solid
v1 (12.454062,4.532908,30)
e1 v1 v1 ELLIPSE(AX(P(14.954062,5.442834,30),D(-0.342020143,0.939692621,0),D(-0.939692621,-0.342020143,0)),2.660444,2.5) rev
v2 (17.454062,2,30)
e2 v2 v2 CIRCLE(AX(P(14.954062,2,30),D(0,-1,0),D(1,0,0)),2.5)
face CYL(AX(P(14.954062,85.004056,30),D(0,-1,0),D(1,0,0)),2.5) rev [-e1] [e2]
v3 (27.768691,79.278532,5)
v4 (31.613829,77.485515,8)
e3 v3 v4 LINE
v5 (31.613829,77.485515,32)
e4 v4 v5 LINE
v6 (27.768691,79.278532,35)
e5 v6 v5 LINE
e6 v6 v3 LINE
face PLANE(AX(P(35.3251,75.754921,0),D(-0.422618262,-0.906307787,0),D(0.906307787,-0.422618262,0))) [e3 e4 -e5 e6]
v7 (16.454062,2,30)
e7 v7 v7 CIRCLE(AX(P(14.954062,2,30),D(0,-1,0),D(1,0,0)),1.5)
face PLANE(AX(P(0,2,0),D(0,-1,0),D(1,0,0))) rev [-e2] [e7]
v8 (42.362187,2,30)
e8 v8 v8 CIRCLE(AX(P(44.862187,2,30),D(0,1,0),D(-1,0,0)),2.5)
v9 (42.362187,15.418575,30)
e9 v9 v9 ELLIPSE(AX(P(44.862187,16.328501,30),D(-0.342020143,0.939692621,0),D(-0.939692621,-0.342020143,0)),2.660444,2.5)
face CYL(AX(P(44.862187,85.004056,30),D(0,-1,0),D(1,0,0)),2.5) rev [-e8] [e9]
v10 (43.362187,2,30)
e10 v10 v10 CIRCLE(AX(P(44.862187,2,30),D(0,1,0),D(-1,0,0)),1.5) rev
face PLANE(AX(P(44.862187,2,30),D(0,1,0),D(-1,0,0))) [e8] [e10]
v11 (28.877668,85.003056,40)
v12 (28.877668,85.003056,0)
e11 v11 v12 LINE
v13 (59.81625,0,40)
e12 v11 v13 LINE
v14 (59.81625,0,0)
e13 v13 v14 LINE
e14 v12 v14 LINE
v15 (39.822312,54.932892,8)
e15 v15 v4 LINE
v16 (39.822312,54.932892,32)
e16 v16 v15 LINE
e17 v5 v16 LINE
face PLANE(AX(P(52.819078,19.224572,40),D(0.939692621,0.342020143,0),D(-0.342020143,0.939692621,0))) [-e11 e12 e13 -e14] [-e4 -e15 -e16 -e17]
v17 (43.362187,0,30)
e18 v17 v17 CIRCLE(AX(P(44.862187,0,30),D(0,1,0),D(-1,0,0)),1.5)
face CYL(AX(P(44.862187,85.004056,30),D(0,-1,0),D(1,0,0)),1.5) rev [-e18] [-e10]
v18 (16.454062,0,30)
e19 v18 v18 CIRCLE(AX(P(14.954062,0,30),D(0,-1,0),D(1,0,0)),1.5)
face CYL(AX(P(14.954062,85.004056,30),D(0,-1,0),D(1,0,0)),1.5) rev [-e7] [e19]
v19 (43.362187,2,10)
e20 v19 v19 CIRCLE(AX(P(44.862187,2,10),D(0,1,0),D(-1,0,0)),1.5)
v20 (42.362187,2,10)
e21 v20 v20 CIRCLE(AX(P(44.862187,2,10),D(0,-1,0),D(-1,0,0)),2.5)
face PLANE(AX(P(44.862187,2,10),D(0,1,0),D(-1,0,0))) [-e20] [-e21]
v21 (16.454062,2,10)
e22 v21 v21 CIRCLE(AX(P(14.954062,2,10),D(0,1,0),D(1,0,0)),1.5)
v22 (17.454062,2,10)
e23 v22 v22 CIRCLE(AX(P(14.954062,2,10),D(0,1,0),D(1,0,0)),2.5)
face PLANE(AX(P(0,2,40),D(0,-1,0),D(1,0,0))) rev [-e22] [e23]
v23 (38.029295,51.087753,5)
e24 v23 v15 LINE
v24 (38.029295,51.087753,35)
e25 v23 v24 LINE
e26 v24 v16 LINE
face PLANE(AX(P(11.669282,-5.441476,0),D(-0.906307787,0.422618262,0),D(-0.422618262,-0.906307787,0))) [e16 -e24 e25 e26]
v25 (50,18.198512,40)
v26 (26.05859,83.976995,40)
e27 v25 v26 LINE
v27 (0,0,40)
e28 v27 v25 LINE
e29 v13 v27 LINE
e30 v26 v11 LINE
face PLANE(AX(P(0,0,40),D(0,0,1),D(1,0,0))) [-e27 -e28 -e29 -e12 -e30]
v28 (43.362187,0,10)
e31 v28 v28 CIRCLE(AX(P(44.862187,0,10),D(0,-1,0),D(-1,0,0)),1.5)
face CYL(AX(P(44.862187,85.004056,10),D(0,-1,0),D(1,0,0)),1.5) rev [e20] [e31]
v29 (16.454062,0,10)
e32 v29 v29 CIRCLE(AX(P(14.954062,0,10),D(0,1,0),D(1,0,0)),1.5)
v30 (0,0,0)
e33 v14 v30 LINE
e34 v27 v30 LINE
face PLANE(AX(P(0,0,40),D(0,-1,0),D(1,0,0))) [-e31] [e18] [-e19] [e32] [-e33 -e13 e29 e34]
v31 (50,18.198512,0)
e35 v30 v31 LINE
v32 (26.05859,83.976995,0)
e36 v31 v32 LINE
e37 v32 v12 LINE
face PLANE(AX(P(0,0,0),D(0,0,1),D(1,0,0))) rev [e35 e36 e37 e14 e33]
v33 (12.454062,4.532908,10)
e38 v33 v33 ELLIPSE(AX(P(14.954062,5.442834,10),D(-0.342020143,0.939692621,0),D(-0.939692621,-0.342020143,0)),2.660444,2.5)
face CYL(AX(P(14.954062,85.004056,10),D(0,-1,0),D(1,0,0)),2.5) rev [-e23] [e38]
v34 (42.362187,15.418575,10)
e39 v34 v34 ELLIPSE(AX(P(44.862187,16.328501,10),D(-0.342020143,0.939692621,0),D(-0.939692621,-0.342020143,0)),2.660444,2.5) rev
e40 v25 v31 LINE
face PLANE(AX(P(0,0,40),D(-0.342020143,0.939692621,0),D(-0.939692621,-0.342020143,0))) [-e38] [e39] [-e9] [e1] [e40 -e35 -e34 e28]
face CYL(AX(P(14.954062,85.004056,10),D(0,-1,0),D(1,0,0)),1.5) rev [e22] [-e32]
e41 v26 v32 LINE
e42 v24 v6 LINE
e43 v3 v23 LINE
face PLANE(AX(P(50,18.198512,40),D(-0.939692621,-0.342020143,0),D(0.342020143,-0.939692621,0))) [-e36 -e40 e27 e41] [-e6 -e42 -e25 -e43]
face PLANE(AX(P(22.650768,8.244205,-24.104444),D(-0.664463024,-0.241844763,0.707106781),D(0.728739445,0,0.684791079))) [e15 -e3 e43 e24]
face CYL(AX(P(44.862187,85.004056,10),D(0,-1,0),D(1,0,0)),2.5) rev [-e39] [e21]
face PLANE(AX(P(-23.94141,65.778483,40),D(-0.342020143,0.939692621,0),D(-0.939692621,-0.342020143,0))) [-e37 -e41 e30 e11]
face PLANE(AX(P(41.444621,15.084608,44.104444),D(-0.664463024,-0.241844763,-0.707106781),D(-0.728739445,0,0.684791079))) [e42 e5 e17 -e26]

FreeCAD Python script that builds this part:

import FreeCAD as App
import Part
import Sketcher

V = App.Vector
Q = App.Units.Quantity

doc = App.newDocument("Part")
body = doc.addObject("PartDesign::Body", "Body")

sketch1 = body.newObject("Sketcher::SketchObject", "Sketch")
sketch1.AttachmentSupport = (doc.getObject("XY_Plane"), [""])
sketch1.MapMode = "FlatFace"
sketch1.addGeometry([
    Part.LineSegment(V(50, 18.2, 0), V(0, 0, 0)),
    Part.LineSegment(V(0, 0, 0), V(59.8, 0, 0)),
    Part.LineSegment(V(59.8, 0, 0), V(28.9, 85, 0)),
    Part.LineSegment(V(28.9, 85, 0), V(26.1, 84, 0)),
    Part.LineSegment(V(26.1, 84, 0), V(50, 18.2, 0)),
], False)
sketch1.addConstraint([
    Sketcher.Constraint("Coincident", 0, 2, 1, 1),
    Sketcher.Constraint("Coincident", 1, 2, 2, 1),
    Sketcher.Constraint("Coincident", 2, 2, 3, 1),
    Sketcher.Constraint("Coincident", 3, 2, 4, 1),
    Sketcher.Constraint("Coincident", 4, 2, 0, 1),
    Sketcher.Constraint("Horizontal", 1),
    Sketcher.Constraint("Coincident", 0, 2, -1, 1),
    Sketcher.Constraint("Perpendicular", 0, 2),
    Sketcher.Constraint("Perpendicular", 2, 3),
    Sketcher.Constraint("Perpendicular", 3, 4),
    Sketcher.Constraint("Angle", 0, Q("-160 deg")),
    Sketcher.Constraint("Distance", 3, Q("3 mm")),
    Sketcher.Constraint("Distance", 4, Q("70 mm")),
    Sketcher.Constraint("DistanceX", -1, 1, 4, 2, Q("50 mm")),
])
pad1 = body.newObject("PartDesign::Pad", "Pad")
pad1.Profile = sketch1
pad1.Length = 40

sketch2 = body.newObject("Sketcher::SketchObject", "Sketch001")
sketch2.AttachmentSupport = (doc.getObject("XZ_Plane"), [""])
sketch2.MapMode = "FlatFace"
sketch2.AttachmentOffset = App.Placement(V(0, 0, -16.874456), App.Rotation())
sketch2.addGeometry([
    Part.Circle(V(15, 30, 0), V(0, 0, 1), 1.5),
    Part.Circle(V(44.9, 30, 0), V(0, 0, 1), 1.5),
], False)
sketch2.addConstraint([
    Sketcher.Constraint("Equal", 0, 1),
    Sketcher.Constraint("Horizontal", 0, 3, 1, 3),
    Sketcher.Constraint("Diameter", 0, Q("3 mm")),
    Sketcher.Constraint("DistanceY", -1, 1, 0, 3, Q("30 mm")),
    Sketcher.Constraint("DistanceX", -1, 1, 0, 3, Q("14.954062 mm")),
    Sketcher.Constraint("DistanceX", -1, 1, 1, 3, Q("44.862187 mm")),
])
pocket1 = body.newObject("PartDesign::Pocket", "Pocket")
pocket1.Profile = sketch2
pocket1.Length = 16.874456
pocket1.Reversed = True

sketch3 = body.newObject("Sketcher::SketchObject", "Sketch002")
sketch3.AttachmentSupport = (doc.getObject("XZ_Plane"), [""])
sketch3.MapMode = "FlatFace"
sketch3.AttachmentOffset = App.Placement(V(0, 0, -17.238427), App.Rotation())
sketch3.addGeometry([
    Part.Circle(V(15, 30, 0), V(0, 0, 1), 2.5),
    Part.Circle(V(15, 30, 0), V(0, 0, 1), 1.5),
    Part.Circle(V(44.9, 30, 0), V(0, 0, 1), 2.5),
], False)
sketch3.addConstraint([
    Sketcher.Constraint("Coincident", 1, 3, 0, 3),
    Sketcher.Constraint("Equal", 0, 2),
    Sketcher.Constraint("Horizontal", 1, 3, 2, 3),
    Sketcher.Constraint("Diameter", 0, Q("5 mm")),
    Sketcher.Constraint("Diameter", 1, Q("3 mm")),
    Sketcher.Constraint("DistanceY", -1, 1, 0, 3, Q("30 mm")),
    Sketcher.Constraint("DistanceX", -1, 1, 0, 3, Q("14.954062 mm")),
    Sketcher.Constraint("DistanceX", -1, 1, 2, 3, Q("44.862187 mm")),
])
pocket2 = body.newObject("PartDesign::Pocket", "Pocket001")
pocket2.Profile = sketch3
pocket2.Length = 15.238427
pocket2.Reversed = True
doc.recompute()

datumplane = body.newObject("PartDesign::Plane", "DatumPlane")
datumplane.AttachmentSupport = (doc.getObject("XY_Plane"), [""])
datumplane.MapMode = "FlatFace"
datumplane.AttachmentOffset = App.Placement(V(0, 0, 20), App.Rotation())
mirrored = body.newObject("PartDesign::Mirrored", "Mirrored")
mirrored.Originals = [pocket1, pocket2]
mirrored.MirrorPlane = (datumplane, [""])
body.Tip = mirrored

sketch4 = body.newObject("Sketcher::SketchObject", "Sketch003")
sketch4.Placement = App.Placement(V(50, 18.198512, 0), App.Rotation(V(0, 0, 1), V(-0.342020143, 0.939692621, 0), V(-0.939692621, -0.342020143, 0), "ZXY"))
sketch4.addGeometry([
    Part.LineSegment(V(5, 65, 0), V(5, 35, 0)),
    Part.LineSegment(V(5, 35, 0), V(35, 35, 0)),
    Part.LineSegment(V(35, 35, 0), V(35, 65, 0)),
    Part.LineSegment(V(35, 65, 0), V(5, 65, 0)),
], False)
sketch4.addConstraint([
    Sketcher.Constraint("Coincident", 0, 2, 1, 1),
    Sketcher.Constraint("Coincident", 1, 2, 2, 1),
    Sketcher.Constraint("Coincident", 2, 2, 3, 1),
    Sketcher.Constraint("Coincident", 3, 2, 0, 1),
    Sketcher.Constraint("Vertical", 0),
    Sketcher.Constraint("Horizontal", 1),
    Sketcher.Constraint("Vertical", 2),
    Sketcher.Constraint("Horizontal", 3),
    Sketcher.Constraint("Equal", 3, 0),
    Sketcher.Constraint("DistanceX", 1, 1, 1, 2, Q("30 mm")),
    Sketcher.Constraint("DistanceX", -1, 1, 0, 2, Q("5 mm")),
    Sketcher.Constraint("DistanceY", -1, 1, 0, 2, Q("35 mm")),
])

sketch5 = body.newObject("Sketcher::SketchObject", "Sketch004")
sketch5.Placement = App.Placement(V(52.819078, 19.224572, 0), App.Rotation(V(0, 0, -1), V(-0.342020143, 0.939692621, 0), V(0.939692621, 0.342020143, 0), "ZXY"))
sketch5.addGeometry([
    Part.LineSegment(V(-32, 62, 0), V(-32, 38, 0)),
    Part.LineSegment(V(-32, 38, 0), V(-8, 38, 0)),
    Part.LineSegment(V(-8, 38, 0), V(-8, 62, 0)),
    Part.LineSegment(V(-8, 62, 0), V(-32, 62, 0)),
], False)
sketch5.addConstraint([
    Sketcher.Constraint("Coincident", 0, 2, 1, 1),
    Sketcher.Constraint("Coincident", 1, 2, 2, 1),
    Sketcher.Constraint("Coincident", 2, 2, 3, 1),
    Sketcher.Constraint("Coincident", 3, 2, 0, 1),
    Sketcher.Constraint("Vertical", 0),
    Sketcher.Constraint("Horizontal", 1),
    Sketcher.Constraint("Vertical", 2),
    Sketcher.Constraint("Horizontal", 3),
    Sketcher.Constraint("Equal", 3, 0),
    Sketcher.Constraint("DistanceX", 1, 1, 1, 2, Q("24 mm")),
    Sketcher.Constraint("DistanceX", 0, 2, -1, 1, Q("32 mm")),
    Sketcher.Constraint("DistanceY", -1, 1, 0, 2, Q("38 mm")),
])

subtractiveloft = body.newObject("PartDesign::SubtractiveLoft", "SubtractiveLoft")
subtractiveloft.Profile = sketch4
subtractiveloft.Sections = [sketch5]

doc.recompute()
